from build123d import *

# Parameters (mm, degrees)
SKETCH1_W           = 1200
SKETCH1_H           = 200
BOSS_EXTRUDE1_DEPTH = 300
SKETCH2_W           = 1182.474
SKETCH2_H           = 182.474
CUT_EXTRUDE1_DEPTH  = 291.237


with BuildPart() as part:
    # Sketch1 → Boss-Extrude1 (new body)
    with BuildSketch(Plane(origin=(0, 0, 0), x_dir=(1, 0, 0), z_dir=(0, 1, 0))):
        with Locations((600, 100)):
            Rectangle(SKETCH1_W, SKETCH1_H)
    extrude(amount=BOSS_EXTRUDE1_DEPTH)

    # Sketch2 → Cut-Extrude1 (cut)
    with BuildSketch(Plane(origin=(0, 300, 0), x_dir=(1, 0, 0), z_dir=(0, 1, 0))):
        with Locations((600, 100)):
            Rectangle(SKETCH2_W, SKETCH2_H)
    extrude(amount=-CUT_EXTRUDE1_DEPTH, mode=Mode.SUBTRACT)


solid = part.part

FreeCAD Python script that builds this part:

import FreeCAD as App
import Part
import Sketcher

V = App.Vector
Q = App.Units.Quantity

doc = App.newDocument("Part")
body = doc.addObject("PartDesign::Body", "Body")

sketch1 = body.newObject("Sketcher::SketchObject", "Sketch")
sketch1.AttachmentSupport = (doc.getObject("XZ_Plane"), [""])
sketch1.MapMode = "FlatFace"
sketch1.addGeometry([
    Part.LineSegment(V(0, -200, 0), V(0, 0, 0)),
    Part.LineSegment(V(0, 0, 0), V(1200, 0, 0)),
    Part.LineSegment(V(1200, 0, 0), V(1200, -200, 0)),
    Part.LineSegment(V(1200, -200, 0), V(0, -200, 0)),
], False)
sketch1.addConstraint([
    Sketcher.Constraint("Coincident", 0, 2, 1, 1),
    Sketcher.Constraint("Coincident", 1, 2, 2, 1),
    Sketcher.Constraint("Coincident", 2, 2, 3, 1),
    Sketcher.Constraint("Coincident", 3, 2, 0, 1),
    Sketcher.Constraint("Vertical", 0),
    Sketcher.Constraint("Horizontal", 1),
    Sketcher.Constraint("Vertical", 2),
    Sketcher.Constraint("Horizontal", 3),
    Sketcher.Constraint("Coincident", 0, 2, -1, 1),
    Sketcher.Constraint("DistanceX", 1, 1, 1, 2, Q("1200 mm")),
    Sketcher.Constraint("DistanceY", 0, 1, 0, 2, Q("200 mm")),
])
pad1 = body.newObject("PartDesign::Pad", "Pad")
pad1.Profile = sketch1
pad1.Length = 300
pad1.Reversed = True

sketch2 = body.newObject("Sketcher::SketchObject", "Sketch001")
sketch2.AttachmentSupport = (doc.getObject("XZ_Plane"), [""])
sketch2.MapMode = "FlatFace"
sketch2.AttachmentOffset = App.Placement(V(0, 0, -300), App.Rotation())
sketch2.addGeometry([
    Part.LineSegment(V(9, -191, 0), V(9, -9, 0)),
    Part.LineSegment(V(9, -9, 0), V(1191, -9, 0)),
    Part.LineSegment(V(1191, -9, 0), V(1191, -191, 0)),
    Part.LineSegment(V(1191, -191, 0), V(9, -191, 0)),
], False)
sketch2.addConstraint([
    Sketcher.Constraint("Coincident", 0, 2, 1, 1),
    Sketcher.Constraint("Coincident", 1, 2, 2, 1),
    Sketcher.Constraint("Coincident", 2, 2, 3, 1),
    Sketcher.Constraint("Coincident", 3, 2, 0, 1),
    Sketcher.Constraint("Vertical", 0),
    Sketcher.Constraint("Horizontal", 1),
    Sketcher.Constraint("Vertical", 2),
    Sketcher.Constraint("Horizontal", 3),
    Sketcher.Constraint("DistanceX", 1, 1, 1, 2, Q("1182.474 mm")),
    Sketcher.Constraint("DistanceY", 0, 1, 0, 2, Q("182.474 mm")),
    Sketcher.Constraint("DistanceX", -1, 1, 0, 2, Q("8.763 mm")),
    Sketcher.Constraint("DistanceY", 0, 2, -1, 1, Q("8.763 mm")),
])
pocket1 = body.newObject("PartDesign::Pocket", "Pocket")
pocket1.Profile = sketch2
pocket1.Length = 291.237
pocket1.Reversed = True

doc.recompute()
